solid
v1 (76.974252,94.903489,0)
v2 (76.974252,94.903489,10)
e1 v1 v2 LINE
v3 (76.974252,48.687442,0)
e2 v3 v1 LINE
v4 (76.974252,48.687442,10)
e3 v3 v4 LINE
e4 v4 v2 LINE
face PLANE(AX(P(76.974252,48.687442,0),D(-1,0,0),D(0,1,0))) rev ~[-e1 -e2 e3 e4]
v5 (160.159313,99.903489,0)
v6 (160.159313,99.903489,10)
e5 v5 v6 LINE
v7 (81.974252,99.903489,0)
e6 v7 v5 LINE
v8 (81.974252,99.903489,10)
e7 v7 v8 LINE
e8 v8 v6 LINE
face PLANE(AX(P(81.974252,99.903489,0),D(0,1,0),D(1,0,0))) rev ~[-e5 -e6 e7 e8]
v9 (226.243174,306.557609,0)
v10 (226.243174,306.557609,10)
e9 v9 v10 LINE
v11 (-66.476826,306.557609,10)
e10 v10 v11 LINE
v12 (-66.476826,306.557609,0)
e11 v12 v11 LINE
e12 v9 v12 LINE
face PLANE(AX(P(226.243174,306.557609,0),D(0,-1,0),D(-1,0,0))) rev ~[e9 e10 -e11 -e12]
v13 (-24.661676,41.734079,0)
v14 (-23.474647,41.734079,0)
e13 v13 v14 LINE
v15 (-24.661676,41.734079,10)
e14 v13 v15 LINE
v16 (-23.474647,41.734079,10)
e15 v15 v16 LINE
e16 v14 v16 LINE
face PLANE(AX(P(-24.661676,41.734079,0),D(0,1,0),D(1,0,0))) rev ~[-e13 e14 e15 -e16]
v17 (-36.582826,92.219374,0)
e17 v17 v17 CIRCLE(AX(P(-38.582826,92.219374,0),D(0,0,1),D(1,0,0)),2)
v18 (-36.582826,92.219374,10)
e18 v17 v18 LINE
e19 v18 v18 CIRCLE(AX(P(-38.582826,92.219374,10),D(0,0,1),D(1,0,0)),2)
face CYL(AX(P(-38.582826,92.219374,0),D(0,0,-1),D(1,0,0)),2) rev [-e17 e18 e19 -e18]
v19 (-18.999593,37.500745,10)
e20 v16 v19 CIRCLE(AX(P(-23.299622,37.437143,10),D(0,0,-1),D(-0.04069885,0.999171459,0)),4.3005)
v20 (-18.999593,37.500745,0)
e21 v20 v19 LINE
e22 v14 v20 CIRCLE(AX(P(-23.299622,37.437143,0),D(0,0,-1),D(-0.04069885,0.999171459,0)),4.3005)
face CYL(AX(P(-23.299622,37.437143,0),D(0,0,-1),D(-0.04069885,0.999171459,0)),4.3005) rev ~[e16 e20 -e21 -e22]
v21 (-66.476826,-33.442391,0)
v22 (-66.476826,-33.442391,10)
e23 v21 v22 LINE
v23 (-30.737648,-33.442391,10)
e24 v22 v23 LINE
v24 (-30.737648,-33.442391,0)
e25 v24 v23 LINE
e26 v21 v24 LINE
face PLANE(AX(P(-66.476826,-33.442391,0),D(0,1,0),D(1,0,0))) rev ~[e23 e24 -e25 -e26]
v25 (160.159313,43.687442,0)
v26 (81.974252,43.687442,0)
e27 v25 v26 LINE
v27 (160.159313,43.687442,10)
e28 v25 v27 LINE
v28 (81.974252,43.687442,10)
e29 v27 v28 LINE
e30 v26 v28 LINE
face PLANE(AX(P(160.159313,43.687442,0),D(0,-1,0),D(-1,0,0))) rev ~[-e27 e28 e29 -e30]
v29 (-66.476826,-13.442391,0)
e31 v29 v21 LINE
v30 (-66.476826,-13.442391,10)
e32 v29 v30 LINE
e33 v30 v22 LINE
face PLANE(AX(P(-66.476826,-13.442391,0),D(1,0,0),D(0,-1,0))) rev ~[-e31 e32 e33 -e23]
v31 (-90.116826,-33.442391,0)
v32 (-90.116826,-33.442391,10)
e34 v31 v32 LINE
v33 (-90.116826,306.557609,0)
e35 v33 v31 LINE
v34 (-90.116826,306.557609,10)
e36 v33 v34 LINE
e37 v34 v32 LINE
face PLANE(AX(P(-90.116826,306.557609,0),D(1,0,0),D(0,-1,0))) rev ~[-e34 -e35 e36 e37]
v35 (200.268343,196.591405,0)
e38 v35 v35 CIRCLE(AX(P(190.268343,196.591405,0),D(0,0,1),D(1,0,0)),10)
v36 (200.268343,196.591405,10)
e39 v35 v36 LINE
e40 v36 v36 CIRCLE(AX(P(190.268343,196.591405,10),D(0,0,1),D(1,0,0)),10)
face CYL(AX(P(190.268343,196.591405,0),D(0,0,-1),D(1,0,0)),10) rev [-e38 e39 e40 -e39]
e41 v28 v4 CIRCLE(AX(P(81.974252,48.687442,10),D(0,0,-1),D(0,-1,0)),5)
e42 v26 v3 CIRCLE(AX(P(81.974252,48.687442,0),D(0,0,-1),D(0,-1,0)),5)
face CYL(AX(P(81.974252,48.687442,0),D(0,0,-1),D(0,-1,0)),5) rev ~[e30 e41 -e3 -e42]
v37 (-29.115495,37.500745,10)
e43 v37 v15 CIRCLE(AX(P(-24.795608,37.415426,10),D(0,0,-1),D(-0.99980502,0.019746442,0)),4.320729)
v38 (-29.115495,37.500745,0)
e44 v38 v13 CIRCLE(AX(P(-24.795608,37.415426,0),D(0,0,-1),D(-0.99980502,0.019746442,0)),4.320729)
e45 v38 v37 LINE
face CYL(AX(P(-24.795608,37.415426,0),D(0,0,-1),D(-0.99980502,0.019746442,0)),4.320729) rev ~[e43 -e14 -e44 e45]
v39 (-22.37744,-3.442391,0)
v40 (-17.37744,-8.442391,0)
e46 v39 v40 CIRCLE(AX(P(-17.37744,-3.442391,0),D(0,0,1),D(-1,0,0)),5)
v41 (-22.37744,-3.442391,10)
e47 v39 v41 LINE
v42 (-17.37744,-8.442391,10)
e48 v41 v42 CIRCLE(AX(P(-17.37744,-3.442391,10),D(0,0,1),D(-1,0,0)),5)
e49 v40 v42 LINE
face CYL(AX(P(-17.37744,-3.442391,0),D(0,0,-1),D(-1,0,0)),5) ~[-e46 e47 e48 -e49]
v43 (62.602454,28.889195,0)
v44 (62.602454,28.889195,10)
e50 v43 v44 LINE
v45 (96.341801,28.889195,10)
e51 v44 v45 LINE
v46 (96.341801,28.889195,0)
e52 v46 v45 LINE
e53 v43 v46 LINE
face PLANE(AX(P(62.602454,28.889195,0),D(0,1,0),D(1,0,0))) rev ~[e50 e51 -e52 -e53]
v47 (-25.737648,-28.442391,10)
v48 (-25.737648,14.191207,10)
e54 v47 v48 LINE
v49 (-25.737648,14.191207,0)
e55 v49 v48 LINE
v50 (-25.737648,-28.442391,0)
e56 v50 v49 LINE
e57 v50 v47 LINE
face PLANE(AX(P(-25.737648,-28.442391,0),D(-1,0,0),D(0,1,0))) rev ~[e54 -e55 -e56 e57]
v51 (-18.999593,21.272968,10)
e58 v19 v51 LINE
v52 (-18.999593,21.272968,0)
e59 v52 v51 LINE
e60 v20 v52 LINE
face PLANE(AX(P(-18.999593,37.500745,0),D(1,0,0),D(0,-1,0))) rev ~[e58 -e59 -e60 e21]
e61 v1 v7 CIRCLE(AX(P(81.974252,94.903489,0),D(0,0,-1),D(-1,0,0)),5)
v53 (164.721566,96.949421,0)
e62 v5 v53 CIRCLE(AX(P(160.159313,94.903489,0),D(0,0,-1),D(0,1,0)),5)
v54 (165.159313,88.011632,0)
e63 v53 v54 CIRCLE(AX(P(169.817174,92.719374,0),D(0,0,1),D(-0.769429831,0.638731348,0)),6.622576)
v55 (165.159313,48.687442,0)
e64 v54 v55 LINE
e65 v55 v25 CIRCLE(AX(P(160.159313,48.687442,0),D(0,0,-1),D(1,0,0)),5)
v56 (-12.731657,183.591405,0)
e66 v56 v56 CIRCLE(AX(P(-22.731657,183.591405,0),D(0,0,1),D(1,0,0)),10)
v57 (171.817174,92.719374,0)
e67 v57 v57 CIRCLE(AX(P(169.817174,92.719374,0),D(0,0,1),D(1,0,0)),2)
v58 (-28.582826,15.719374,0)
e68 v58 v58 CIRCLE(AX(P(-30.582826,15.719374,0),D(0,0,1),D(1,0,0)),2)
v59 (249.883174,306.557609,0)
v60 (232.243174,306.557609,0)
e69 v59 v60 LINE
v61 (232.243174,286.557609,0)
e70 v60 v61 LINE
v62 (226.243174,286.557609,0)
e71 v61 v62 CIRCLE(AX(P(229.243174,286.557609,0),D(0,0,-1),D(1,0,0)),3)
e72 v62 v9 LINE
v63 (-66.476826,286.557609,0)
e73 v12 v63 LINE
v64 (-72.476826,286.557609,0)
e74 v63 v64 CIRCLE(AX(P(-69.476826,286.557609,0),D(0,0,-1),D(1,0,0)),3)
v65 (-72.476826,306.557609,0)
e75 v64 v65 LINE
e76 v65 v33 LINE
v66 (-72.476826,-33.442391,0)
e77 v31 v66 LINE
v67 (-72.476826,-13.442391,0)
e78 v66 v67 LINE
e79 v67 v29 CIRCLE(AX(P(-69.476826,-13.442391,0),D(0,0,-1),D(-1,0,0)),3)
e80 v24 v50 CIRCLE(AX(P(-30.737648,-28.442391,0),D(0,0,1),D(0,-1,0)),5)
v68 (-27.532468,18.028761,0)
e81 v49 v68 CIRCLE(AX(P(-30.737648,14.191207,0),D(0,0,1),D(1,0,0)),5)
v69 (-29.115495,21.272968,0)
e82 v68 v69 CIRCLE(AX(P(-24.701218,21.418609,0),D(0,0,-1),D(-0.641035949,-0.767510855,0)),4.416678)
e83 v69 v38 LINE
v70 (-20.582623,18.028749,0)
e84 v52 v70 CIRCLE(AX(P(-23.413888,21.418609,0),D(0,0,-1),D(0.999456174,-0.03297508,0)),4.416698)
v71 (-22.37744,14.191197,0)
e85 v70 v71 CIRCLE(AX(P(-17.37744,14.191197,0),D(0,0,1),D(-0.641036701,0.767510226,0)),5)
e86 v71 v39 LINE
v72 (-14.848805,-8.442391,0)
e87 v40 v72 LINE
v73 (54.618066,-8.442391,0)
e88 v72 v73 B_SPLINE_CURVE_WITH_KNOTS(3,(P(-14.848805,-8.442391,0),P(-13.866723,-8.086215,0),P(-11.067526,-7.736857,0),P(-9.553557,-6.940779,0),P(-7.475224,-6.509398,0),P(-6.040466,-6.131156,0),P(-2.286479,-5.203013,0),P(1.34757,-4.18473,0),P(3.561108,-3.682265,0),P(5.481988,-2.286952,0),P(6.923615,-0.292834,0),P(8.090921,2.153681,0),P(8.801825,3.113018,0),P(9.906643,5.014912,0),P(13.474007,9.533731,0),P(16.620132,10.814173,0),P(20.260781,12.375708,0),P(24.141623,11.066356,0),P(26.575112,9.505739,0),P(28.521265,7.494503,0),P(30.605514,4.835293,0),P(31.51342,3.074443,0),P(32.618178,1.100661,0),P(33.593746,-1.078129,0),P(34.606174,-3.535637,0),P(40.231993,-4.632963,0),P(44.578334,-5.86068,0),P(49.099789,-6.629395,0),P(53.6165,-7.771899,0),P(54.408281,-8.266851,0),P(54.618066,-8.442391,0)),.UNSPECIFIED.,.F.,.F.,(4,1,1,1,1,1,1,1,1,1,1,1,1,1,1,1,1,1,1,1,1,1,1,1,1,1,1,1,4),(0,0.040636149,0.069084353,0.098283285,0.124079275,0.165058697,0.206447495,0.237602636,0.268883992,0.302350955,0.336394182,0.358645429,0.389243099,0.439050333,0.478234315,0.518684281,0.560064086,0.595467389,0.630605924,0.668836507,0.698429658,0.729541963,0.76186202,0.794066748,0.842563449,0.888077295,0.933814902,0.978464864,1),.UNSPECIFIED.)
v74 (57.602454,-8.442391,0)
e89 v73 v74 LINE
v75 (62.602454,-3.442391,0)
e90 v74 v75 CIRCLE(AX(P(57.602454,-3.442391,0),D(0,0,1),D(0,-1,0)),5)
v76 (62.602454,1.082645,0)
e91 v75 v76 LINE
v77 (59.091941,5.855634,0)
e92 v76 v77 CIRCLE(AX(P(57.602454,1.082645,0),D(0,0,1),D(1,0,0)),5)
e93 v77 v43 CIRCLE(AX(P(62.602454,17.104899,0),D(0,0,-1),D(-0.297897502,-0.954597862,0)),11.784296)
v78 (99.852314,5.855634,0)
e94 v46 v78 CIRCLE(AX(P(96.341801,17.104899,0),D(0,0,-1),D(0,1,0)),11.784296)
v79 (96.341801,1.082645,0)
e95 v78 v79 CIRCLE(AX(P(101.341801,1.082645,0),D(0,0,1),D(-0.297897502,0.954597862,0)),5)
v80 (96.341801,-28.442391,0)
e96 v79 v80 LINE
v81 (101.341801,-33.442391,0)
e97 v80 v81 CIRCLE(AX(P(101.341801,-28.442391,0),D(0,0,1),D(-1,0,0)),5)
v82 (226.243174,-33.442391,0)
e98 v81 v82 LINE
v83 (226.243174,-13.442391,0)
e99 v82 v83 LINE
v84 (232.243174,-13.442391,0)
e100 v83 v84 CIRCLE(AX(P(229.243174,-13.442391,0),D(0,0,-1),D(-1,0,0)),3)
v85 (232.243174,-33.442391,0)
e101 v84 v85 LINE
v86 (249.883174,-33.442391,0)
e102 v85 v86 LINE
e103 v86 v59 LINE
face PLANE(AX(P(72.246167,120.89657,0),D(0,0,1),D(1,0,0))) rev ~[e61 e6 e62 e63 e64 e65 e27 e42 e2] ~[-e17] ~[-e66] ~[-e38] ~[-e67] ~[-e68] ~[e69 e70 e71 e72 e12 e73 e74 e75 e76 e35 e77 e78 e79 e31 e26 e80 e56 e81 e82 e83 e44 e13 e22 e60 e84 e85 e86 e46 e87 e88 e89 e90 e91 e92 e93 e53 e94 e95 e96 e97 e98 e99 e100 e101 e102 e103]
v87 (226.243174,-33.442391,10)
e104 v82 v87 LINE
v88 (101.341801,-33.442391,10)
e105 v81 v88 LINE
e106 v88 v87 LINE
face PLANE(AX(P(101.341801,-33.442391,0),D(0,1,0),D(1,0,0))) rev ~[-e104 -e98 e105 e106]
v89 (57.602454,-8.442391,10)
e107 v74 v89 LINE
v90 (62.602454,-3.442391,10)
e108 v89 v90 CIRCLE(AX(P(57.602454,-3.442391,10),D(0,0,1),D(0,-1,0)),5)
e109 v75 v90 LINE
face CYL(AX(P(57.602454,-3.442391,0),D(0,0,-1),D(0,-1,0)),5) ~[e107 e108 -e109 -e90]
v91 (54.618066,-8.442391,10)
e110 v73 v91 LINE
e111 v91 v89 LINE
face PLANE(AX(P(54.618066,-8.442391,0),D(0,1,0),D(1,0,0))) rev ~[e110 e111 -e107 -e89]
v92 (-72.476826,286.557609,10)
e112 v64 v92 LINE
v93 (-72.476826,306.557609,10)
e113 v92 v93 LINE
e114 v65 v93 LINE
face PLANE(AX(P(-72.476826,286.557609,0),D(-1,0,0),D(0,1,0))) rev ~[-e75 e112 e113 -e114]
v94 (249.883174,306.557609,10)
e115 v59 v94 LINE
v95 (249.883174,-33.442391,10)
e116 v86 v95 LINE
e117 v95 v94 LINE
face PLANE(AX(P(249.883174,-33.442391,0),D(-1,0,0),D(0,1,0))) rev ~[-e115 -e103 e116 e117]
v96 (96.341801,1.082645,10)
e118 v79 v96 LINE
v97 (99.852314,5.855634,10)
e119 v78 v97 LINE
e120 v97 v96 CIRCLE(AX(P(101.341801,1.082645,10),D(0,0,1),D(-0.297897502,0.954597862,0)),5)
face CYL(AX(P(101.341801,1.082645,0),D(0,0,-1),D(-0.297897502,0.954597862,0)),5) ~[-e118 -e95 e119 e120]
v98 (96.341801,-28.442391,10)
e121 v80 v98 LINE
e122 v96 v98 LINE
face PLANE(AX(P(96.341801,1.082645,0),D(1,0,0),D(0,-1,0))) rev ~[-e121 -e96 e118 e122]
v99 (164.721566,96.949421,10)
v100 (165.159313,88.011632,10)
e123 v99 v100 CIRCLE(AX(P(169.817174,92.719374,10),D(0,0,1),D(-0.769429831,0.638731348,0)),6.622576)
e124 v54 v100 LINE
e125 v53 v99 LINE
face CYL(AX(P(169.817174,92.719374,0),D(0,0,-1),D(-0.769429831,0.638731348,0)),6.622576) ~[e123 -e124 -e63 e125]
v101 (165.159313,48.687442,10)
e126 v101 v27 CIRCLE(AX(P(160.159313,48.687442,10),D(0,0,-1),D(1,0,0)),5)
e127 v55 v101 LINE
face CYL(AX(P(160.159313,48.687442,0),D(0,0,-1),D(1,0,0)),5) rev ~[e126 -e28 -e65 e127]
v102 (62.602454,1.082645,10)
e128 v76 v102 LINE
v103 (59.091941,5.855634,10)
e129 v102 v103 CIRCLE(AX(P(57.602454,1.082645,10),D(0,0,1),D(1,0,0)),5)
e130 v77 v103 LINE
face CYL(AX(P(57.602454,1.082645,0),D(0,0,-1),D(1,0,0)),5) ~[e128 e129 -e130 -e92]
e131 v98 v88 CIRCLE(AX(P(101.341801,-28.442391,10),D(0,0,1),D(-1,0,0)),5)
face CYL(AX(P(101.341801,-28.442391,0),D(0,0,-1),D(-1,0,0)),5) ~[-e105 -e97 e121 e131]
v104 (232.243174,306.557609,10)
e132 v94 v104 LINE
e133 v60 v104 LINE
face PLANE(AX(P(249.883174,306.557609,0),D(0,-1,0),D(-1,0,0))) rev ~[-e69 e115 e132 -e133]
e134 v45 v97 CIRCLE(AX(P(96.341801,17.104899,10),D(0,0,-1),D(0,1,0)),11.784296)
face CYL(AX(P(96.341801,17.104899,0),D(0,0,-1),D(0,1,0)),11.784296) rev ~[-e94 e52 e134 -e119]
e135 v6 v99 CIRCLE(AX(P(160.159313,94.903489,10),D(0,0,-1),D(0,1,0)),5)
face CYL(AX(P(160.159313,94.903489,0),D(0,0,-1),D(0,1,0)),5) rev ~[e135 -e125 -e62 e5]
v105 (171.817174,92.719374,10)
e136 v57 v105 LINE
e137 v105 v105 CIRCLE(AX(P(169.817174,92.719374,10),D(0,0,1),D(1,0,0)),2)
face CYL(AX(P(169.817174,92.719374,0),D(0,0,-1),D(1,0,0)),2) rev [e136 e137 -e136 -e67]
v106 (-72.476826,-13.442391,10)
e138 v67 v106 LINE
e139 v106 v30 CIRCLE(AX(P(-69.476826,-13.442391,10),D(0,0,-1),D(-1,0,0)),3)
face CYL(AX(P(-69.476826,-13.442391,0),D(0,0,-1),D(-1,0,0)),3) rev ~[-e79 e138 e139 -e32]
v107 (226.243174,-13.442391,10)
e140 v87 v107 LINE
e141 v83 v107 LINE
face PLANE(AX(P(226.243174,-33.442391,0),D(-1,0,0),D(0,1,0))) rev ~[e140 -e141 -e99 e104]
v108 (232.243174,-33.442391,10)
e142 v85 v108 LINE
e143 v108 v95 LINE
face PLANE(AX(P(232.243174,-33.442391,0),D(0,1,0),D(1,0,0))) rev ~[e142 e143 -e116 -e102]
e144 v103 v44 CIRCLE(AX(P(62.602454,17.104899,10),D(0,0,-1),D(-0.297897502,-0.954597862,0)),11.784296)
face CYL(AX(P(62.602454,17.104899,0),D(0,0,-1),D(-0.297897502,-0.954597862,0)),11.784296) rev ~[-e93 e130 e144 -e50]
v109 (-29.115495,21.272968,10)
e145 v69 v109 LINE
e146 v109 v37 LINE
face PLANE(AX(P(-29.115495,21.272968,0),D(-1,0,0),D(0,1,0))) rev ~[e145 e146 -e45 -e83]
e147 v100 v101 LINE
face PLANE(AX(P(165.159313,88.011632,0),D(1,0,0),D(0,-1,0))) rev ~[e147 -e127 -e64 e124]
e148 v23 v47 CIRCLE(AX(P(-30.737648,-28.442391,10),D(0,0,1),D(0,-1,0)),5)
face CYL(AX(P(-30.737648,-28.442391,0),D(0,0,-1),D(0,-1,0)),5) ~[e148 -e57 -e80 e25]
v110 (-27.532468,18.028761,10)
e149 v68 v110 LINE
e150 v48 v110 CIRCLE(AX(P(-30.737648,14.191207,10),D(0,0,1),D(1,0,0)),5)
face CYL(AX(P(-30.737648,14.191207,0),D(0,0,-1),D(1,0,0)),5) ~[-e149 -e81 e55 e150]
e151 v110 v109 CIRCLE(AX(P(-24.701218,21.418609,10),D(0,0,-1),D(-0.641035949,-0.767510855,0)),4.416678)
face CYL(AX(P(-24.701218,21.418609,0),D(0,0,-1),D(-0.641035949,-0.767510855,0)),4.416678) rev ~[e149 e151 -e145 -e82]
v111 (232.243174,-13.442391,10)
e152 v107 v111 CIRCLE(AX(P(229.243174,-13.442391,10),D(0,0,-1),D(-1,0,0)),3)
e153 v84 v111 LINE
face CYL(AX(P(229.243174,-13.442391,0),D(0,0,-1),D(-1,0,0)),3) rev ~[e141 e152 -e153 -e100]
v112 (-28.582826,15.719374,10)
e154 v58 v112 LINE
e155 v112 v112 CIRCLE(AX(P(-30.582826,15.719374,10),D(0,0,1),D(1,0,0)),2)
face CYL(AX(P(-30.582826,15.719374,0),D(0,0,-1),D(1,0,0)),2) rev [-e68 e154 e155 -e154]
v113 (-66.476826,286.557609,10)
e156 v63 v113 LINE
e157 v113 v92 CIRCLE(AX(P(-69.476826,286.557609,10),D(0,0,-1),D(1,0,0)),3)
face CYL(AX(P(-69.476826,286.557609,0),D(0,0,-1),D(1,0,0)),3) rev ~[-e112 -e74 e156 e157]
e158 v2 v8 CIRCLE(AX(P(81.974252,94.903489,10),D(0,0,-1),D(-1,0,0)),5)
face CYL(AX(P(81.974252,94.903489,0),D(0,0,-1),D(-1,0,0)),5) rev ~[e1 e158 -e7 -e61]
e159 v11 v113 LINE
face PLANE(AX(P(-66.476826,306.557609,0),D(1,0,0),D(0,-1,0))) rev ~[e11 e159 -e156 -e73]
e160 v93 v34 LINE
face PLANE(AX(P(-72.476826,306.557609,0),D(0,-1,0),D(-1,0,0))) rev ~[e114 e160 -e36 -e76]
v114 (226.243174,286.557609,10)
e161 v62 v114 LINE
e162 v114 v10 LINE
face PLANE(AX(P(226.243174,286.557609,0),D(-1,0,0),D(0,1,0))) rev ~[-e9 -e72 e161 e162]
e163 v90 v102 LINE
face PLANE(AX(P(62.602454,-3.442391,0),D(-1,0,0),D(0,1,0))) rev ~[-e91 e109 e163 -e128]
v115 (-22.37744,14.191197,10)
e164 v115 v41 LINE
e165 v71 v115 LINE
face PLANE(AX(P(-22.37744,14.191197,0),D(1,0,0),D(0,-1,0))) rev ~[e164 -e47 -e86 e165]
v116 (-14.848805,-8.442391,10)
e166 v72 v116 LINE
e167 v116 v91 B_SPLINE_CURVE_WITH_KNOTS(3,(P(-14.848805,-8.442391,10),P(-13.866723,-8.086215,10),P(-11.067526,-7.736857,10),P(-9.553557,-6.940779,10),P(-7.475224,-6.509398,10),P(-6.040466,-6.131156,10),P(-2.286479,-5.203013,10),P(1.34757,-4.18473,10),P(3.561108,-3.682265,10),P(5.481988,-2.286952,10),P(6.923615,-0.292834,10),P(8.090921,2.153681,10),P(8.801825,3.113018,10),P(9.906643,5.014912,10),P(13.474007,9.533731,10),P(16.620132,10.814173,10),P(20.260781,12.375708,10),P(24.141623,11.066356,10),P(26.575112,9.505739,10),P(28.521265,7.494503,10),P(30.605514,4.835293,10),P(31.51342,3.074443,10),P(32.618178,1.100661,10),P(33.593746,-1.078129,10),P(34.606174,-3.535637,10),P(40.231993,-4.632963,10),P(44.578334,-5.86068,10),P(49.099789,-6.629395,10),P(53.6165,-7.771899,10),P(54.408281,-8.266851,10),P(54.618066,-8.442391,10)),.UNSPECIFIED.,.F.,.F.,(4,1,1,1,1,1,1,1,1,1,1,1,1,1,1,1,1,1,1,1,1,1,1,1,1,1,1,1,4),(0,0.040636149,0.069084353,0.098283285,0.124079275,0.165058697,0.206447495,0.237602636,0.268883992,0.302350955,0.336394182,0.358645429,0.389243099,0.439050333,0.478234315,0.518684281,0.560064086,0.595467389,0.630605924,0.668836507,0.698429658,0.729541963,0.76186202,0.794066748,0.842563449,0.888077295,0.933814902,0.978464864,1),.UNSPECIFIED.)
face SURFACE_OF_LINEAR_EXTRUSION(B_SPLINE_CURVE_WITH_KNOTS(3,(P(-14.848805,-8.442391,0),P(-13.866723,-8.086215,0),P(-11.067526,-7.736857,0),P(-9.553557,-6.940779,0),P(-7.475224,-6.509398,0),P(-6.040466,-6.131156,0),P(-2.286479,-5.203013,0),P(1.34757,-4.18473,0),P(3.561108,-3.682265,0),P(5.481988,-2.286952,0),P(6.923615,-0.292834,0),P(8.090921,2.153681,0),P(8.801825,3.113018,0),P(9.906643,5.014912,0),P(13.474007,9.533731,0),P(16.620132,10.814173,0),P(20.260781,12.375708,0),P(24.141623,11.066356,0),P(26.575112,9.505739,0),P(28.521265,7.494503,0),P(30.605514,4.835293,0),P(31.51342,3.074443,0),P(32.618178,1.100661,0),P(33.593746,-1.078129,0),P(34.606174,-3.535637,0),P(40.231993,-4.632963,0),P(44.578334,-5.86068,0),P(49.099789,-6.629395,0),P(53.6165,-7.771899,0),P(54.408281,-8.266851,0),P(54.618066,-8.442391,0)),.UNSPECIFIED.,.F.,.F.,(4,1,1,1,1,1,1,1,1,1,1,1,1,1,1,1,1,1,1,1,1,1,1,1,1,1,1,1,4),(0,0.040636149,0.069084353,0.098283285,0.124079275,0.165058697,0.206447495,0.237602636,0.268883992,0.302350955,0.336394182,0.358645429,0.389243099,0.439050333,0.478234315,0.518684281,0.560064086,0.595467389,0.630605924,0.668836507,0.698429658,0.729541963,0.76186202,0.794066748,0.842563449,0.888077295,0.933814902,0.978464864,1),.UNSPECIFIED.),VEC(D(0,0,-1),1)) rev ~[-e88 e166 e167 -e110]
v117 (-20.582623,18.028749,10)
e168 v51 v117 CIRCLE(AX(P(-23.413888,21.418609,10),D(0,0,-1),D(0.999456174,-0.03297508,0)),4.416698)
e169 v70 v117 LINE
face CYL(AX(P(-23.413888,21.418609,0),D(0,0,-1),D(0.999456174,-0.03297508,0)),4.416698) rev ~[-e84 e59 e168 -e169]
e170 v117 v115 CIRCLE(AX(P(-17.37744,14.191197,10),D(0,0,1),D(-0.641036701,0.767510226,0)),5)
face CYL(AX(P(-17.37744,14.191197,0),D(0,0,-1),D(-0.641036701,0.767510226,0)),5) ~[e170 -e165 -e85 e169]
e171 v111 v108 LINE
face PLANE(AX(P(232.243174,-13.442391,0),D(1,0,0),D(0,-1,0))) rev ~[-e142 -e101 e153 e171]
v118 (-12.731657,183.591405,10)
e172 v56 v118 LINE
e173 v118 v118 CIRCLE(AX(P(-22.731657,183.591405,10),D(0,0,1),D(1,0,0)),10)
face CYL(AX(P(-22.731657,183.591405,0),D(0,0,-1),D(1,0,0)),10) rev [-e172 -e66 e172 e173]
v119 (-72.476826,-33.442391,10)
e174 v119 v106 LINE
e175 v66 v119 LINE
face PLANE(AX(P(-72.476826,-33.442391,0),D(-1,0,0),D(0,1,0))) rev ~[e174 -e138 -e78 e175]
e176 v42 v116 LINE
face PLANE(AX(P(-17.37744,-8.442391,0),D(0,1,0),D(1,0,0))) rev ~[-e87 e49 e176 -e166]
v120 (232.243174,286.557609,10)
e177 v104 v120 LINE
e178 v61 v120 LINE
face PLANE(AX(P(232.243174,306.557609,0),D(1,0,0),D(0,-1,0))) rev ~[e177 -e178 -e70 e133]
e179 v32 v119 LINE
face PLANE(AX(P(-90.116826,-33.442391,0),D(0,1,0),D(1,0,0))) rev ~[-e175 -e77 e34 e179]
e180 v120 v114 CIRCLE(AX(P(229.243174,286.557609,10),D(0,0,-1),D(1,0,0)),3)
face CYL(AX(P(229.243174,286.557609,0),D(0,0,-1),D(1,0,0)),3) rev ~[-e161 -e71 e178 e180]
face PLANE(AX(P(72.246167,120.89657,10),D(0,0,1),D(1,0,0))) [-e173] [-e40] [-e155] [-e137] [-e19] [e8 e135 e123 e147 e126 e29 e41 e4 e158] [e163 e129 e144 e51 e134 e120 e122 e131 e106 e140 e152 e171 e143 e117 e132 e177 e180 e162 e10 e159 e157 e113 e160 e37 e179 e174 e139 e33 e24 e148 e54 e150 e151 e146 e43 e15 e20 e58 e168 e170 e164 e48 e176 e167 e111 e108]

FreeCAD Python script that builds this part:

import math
import FreeCAD as App
import Part
import Sketcher
from FreeCAD import Vector
Q = App.Units.Quantity

doc = App.newDocument("Part")
body = doc.addObject("PartDesign::Body", "Body")

# Sketch on XY plane
sketch1 = body.newObject("Sketcher::SketchObject", "Sketch")
sketch1.AttachmentSupport = (doc.getObject("XY_Plane"), [""])
sketch1.MapMode = "FlatFace"
sketch1.addGeometry(Part.ArcOfCircle(Part.Circle(Vector(62.602454, 17.104899, 0), Vector(0, 0, 1), 11.784296), math.radians(90), math.radians(252.668634)), False)
sketch1.addGeometry(Part.LineSegment(Vector(62.602454, 28.889195, 0), Vector(96.341801, 28.889195, 0)), False)
sketch1.addGeometry(Part.ArcOfCircle(Part.Circle(Vector(96.341801, 17.104899, 0), Vector(0, 0, 1), 11.784296), math.radians(-72.668634), math.radians(90)), False)
sketch1.addGeometry(Part.ArcOfCircle(Part.Circle(Vector(101.341801, 1.082645, 0), Vector(0, 0, 1), 5), math.radians(107.331366), math.radians(180)), False)
sketch1.addGeometry(Part.LineSegment(Vector(96.341801, 1.082645, 0), Vector(96.341801, -28.442391, 0)), False)
sketch1.addGeometry(Part.ArcOfCircle(Part.Circle(Vector(101.341801, -28.442391, 0), Vector(0, 0, 1), 5), math.radians(180), math.radians(270)), False)
sketch1.addGeometry(Part.LineSegment(Vector(101.341801, -33.442391, 0), Vector(226.243174, -33.442391, 0)), False)
sketch1.addGeometry(Part.LineSegment(Vector(226.243174, -33.442391, 0), Vector(226.243174, -13.442391, 0)), False)
sketch1.addGeometry(Part.ArcOfCircle(Part.Circle(Vector(229.243174, -13.442391, 0), Vector(0, 0, 1), 3), math.radians(0), math.radians(180)), False)
sketch1.addGeometry(Part.LineSegment(Vector(232.243174, -13.442391, 0), Vector(232.243174, -33.442391, 0)), False)
sketch1.addGeometry(Part.LineSegment(Vector(232.243174, -33.442391, 0), Vector(249.883174, -33.442391, 0)), False)
sketch1.addGeometry(Part.LineSegment(Vector(249.883174, -33.442391, 0), Vector(249.883174, 306.557609, 0)), False)
sketch1.addGeometry(Part.LineSegment(Vector(249.883174, 306.557609, 0), Vector(232.243174, 306.557609, 0)), False)
sketch1.addGeometry(Part.LineSegment(Vector(232.243174, 306.557609, 0), Vector(232.243174, 286.557609, 0)), False)
sketch1.addGeometry(Part.ArcOfCircle(Part.Circle(Vector(229.243174, 286.557609, 0), Vector(0, 0, 1), 3), math.radians(180), math.radians(360)), False)
sketch1.addGeometry(Part.LineSegment(Vector(226.243174, 286.557609, 0), Vector(226.243174, 306.557609, 0)), False)
sketch1.addGeometry(Part.LineSegment(Vector(226.243174, 306.557609, 0), Vector(-66.476826, 306.557609, 0)), False)
sketch1.addGeometry(Part.LineSegment(Vector(-66.476826, 306.557609, 0), Vector(-66.476826, 286.557609, 0)), False)
sketch1.addGeometry(Part.ArcOfCircle(Part.Circle(Vector(-69.476826, 286.557609, 0), Vector(0, 0, 1), 3), math.radians(180), math.radians(360)), False)
sketch1.addGeometry(Part.LineSegment(Vector(-72.476826, 286.557609, 0), Vector(-72.476826, 306.557609, 0)), False)
sketch1.addGeometry(Part.LineSegment(Vector(-72.476826, 306.557609, 0), Vector(-90.116826, 306.557609, 0)), False)
sketch1.addGeometry(Part.LineSegment(Vector(-90.116826, 306.557609, 0), Vector(-90.116826, -33.442391, 0)), False)
sketch1.addGeometry(Part.LineSegment(Vector(-90.116826, -33.442391, 0), Vector(-72.476826, -33.442391, 0)), False)
sketch1.addGeometry(Part.LineSegment(Vector(-72.476826, -33.442391, 0), Vector(-72.476826, -13.442391, 0)), False)
sketch1.addGeometry(Part.ArcOfCircle(Part.Circle(Vector(-69.476826, -13.442391, 0), Vector(0, 0, 1), 3), math.radians(0), math.radians(180)), False)
sketch1.addGeometry(Part.LineSegment(Vector(-66.476826, -13.442391, 0), Vector(-66.476826, -33.442391, 0)), False)
sketch1.addGeometry(Part.LineSegment(Vector(-66.476826, -33.442391, 0), Vector(-30.737648, -33.442391, 0)), False)
sketch1.addGeometry(Part.ArcOfCircle(Part.Circle(Vector(-30.737648, -28.442391, 0), Vector(0, 0, 1), 5), math.radians(-90), math.radians(0)), False)
sketch1.addGeometry(Part.LineSegment(Vector(-25.737648, -28.442391, 0), Vector(-25.737648, 14.191207, 0)), False)
sketch1.addGeometry(Part.ArcOfCircle(Part.Circle(Vector(-30.737648, 14.191207, 0), Vector(0, 0, 1), 5), math.radians(0), math.radians(50.130889)), False)
sketch1.addGeometry(Part.ArcOfCircle(Part.Circle(Vector(-24.701218, 21.418609, 0), Vector(0, 0, 1), 4.416678), math.radians(-178.110316), math.radians(-129.869111)), False)
sketch1.addGeometry(Part.LineSegment(Vector(-29.115495, 21.272968, 0), Vector(-29.115495, 37.500745, 0)), False)
sketch1.addGeometry(Part.ArcOfCircle(Part.Circle(Vector(-24.795608, 37.415426, 0), Vector(0, 0, 1), 4.320729), math.radians(88.223685), math.radians(178.868539)), False)
sketch1.addGeometry(Part.LineSegment(Vector(-24.661676, 41.734079, 0), Vector(-23.474647, 41.734079, 0)), False)
sketch1.addGeometry(Part.ArcOfCircle(Part.Circle(Vector(-23.299622, 37.437143, 0), Vector(0, 0, 1), 4.3005), math.radians(0.847413), math.radians(92.332517)), False)
sketch1.addGeometry(Part.LineSegment(Vector(-18.999593, 37.500745, 0), Vector(-18.999593, 21.272968, 0)), False)
sketch1.addGeometry(Part.ArcOfCircle(Part.Circle(Vector(-23.413888, 21.418609, 0), Vector(0, 0, 1), 4.416698), math.radians(-50.130833), math.radians(-1.889675)), False)
sketch1.addGeometry(Part.ArcOfCircle(Part.Circle(Vector(-17.37744, 14.191197, 0), Vector(0, 0, 1), 5), math.radians(129.869167), math.radians(180)), False)
sketch1.addGeometry(Part.LineSegment(Vector(-22.37744, 14.191197, 0), Vector(-22.37744, -3.442391, 0)), False)
sketch1.addGeometry(Part.ArcOfCircle(Part.Circle(Vector(-17.37744, -3.442391, 0), Vector(0, 0, 1), 5), math.radians(180), math.radians(270)), False)
sketch1.addGeometry(Part.LineSegment(Vector(-17.37744, -8.442391, 0), Vector(-14.848805, -8.442391, 0)), False)
sketch1.addGeometry(Part.BSplineCurve([Vector(-14.848805, -8.442391, 0), Vector(-13.866723, -8.086215, 0), Vector(-11.067526, -7.736857, 0), Vector(-9.553557, -6.940779, 0), Vector(-7.475224, -6.509398, 0), Vector(-6.040466, -6.131156, 0), Vector(-2.286479, -5.203013, 0), Vector(1.34757, -4.18473, 0), Vector(3.561108, -3.682265, 0), Vector(5.481988, -2.286952, 0), Vector(6.923615, -0.292834, 0), Vector(8.090921, 2.153681, 0), Vector(8.801825, 3.113018, 0), Vector(9.906643, 5.014912, 0), Vector(13.474007, 9.533731, 0), Vector(16.620132, 10.814173, 0), Vector(20.260781, 12.375708, 0), Vector(24.141623, 11.066356, 0), Vector(26.575112, 9.505739, 0), Vector(28.521265, 7.494503, 0), Vector(30.605514, 4.835293, 0), Vector(31.51342, 3.074443, 0), Vector(32.618178, 1.100661, 0), Vector(33.593746, -1.078129, 0), Vector(34.606174, -3.535637, 0), Vector(40.231993, -4.632963, 0), Vector(44.578334, -5.86068, 0), Vector(49.099789, -6.629395, 0), Vector(53.6165, -7.771899, 0), Vector(54.408281, -8.266851, 0), Vector(54.618066, -8.442391, 0)], [4, 1, 1, 1, 1, 1, 1, 1, 1, 1, 1, 1, 1, 1, 1, 1, 1, 1, 1, 1, 1, 1, 1, 1, 1, 1, 1, 1, 4], [0, 0.040636149, 0.069084353, 0.098283285, 0.124079275, 0.165058697, 0.206447495, 0.237602636, 0.268883992, 0.302350955, 0.336394182, 0.358645429, 0.389243099, 0.439050333, 0.478234315, 0.518684281, 0.560064086, 0.595467389, 0.630605924, 0.668836507, 0.698429658, 0.729541963, 0.76186202, 0.794066748, 0.842563449, 0.888077295, 0.933814902, 0.978464864, 1], False, 3, [1, 1, 1, 1, 1, 1, 1, 1, 1, 1, 1, 1, 1, 1, 1, 1, 1, 1, 1, 1, 1, 1, 1, 1, 1, 1, 1, 1, 1, 1, 1], False), False)
sketch1.addGeometry(Part.LineSegment(Vector(54.618066, -8.442391, 0), Vector(57.602454, -8.442391, 0)), False)
sketch1.addGeometry(Part.ArcOfCircle(Part.Circle(Vector(57.602454, -3.442391, 0), Vector(0, 0, 1), 5), math.radians(-90), math.radians(0)), False)
sketch1.addGeometry(Part.LineSegment(Vector(62.602454, -3.442391, 0), Vector(62.602454, 1.082645, 0)), False)
sketch1.addGeometry(Part.ArcOfCircle(Part.Circle(Vector(57.602454, 1.082645, 0), Vector(0, 0, 1), 5), math.radians(0), math.radians(72.668634)), False)
sketch1.addGeometry(Part.Circle(Vector(-30.582826, 15.719374, 0), Vector(0, 0, 1), 2), False)
sketch1.addGeometry(Part.Circle(Vector(-38.582826, 92.219374, 0), Vector(0, 0, 1), 2), False)
sketch1.addGeometry(Part.LineSegment(Vector(76.974252, 48.687442, 0), Vector(76.974252, 94.903489, 0)), False)
sketch1.addGeometry(Part.ArcOfCircle(Part.Circle(Vector(81.974252, 94.903489, 0), Vector(0, 0, 1), 5), math.radians(90), math.radians(180)), False)
sketch1.addGeometry(Part.LineSegment(Vector(81.974252, 99.903489, 0), Vector(160.159313, 99.903489, 0)), False)
sketch1.addGeometry(Part.ArcOfCircle(Part.Circle(Vector(160.159313, 94.903489, 0), Vector(0, 0, 1), 5), math.radians(24.153739), math.radians(90)), False)
sketch1.addGeometry(Part.ArcOfCircle(Part.Circle(Vector(169.817174, 92.719374, 0), Vector(0, 0, 1), 6.622576), math.radians(140.302716), math.radians(225.305153)), False)
sketch1.addGeometry(Part.LineSegment(Vector(165.159313, 88.011632, 0), Vector(165.159313, 48.687442, 0)), False)
sketch1.addGeometry(Part.ArcOfCircle(Part.Circle(Vector(160.159313, 48.687442, 0), Vector(0, 0, 1), 5), math.radians(-90), math.radians(0)), False)
sketch1.addGeometry(Part.LineSegment(Vector(160.159313, 43.687442, 0), Vector(81.974252, 43.687442, 0)), False)
sketch1.addGeometry(Part.ArcOfCircle(Part.Circle(Vector(81.974252, 48.687442, 0), Vector(0, 0, 1), 5), math.radians(-180), math.radians(-90)), False)
sketch1.addGeometry(Part.Circle(Vector(169.817174, 92.719374, 0), Vector(0, 0, 1), 2), False)
sketch1.addGeometry(Part.Circle(Vector(-22.731657, 183.591405, 0), Vector(0, 0, 1), 10), False)
sketch1.addGeometry(Part.Circle(Vector(190.268343, 196.591405, 0), Vector(0, 0, 1), 10), False)
sketch1.addConstraint(Sketcher.Constraint("Block", 41))
sketch1.addConstraint(Sketcher.Constraint("Tangent", 0, 1, 1, 1))
sketch1.addConstraint(Sketcher.Constraint("Tangent", 1, 2, 2, 2))
sketch1.addConstraint(Sketcher.Constraint("Tangent", 2, 1, 3, 1))
sketch1.addConstraint(Sketcher.Constraint("Tangent", 3, 2, 4, 1))
sketch1.addConstraint(Sketcher.Constraint("Tangent", 4, 2, 5, 1))
sketch1.addConstraint(Sketcher.Constraint("Tangent", 5, 2, 6, 1))
sketch1.addConstraint(Sketcher.Constraint("Coincident", 6, 2, 7, 1))
sketch1.addConstraint(Sketcher.Constraint("Tangent", 7, 2, 8, 2))
sketch1.addConstraint(Sketcher.Constraint("Tangent", 8, 1, 9, 1))
sketch1.addConstraint(Sketcher.Constraint("Coincident", 9, 2, 10, 1))
sketch1.addConstraint(Sketcher.Constraint("Coincident", 10, 2, 11, 1))
sketch1.addConstraint(Sketcher.Constraint("Coincident", 11, 2, 12, 1))
sketch1.addConstraint(Sketcher.Constraint("Coincident", 12, 2, 13, 1))
sketch1.addConstraint(Sketcher.Constraint("Tangent", 13, 2, 14, 2))
sketch1.addConstraint(Sketcher.Constraint("Tangent", 14, 1, 15, 1))
sketch1.addConstraint(Sketcher.Constraint("Coincident", 15, 2, 16, 1))
sketch1.addConstraint(Sketcher.Constraint("Coincident", 16, 2, 17, 1))
sketch1.addConstraint(Sketcher.Constraint("Tangent", 17, 2, 18, 2))
sketch1.addConstraint(Sketcher.Constraint("Tangent", 18, 1, 19, 1))
sketch1.addConstraint(Sketcher.Constraint("Coincident", 19, 2, 20, 1))
sketch1.addConstraint(Sketcher.Constraint("Coincident", 20, 2, 21, 1))
sketch1.addConstraint(Sketcher.Constraint("Coincident", 21, 2, 22, 1))
sketch1.addConstraint(Sketcher.Constraint("Coincident", 22, 2, 23, 1))
sketch1.addConstraint(Sketcher.Constraint("Tangent", 23, 2, 24, 2))
sketch1.addConstraint(Sketcher.Constraint("Tangent", 24, 1, 25, 1))
sketch1.addConstraint(Sketcher.Constraint("Coincident", 25, 2, 26, 1))
sketch1.addConstraint(Sketcher.Constraint("Tangent", 26, 2, 27, 1))
sketch1.addConstraint(Sketcher.Constraint("Tangent", 27, 2, 28, 1))
sketch1.addConstraint(Sketcher.Constraint("Tangent", 28, 2, 29, 1))
sketch1.addConstraint(Sketcher.Constraint("Tangent", 29, 2, 30, 2))
sketch1.addConstraint(Sketcher.Constraint("Coincident", 30, 1, 31, 1))
sketch1.addConstraint(Sketcher.Constraint("Coincident", 31, 2, 32, 2))
sketch1.addConstraint(Sketcher.Constraint("Coincident", 32, 1, 33, 1))
sketch1.addConstraint(Sketcher.Constraint("Coincident", 33, 2, 34, 2))
sketch1.addConstraint(Sketcher.Constraint("Coincident", 34, 1, 35, 1))
sketch1.addConstraint(Sketcher.Constraint("Coincident", 35, 2, 36, 2))
sketch1.addConstraint(Sketcher.Constraint("Tangent", 36, 1, 37, 1))
sketch1.addConstraint(Sketcher.Constraint("Tangent", 37, 2, 38, 1))
sketch1.addConstraint(Sketcher.Constraint("Tangent", 38, 2, 39, 1))
sketch1.addConstraint(Sketcher.Constraint("Tangent", 39, 2, 40, 1))
sketch1.addConstraint(Sketcher.Constraint("Coincident", 40, 2, 41, 1))
sketch1.addConstraint(Sketcher.Constraint("Coincident", 41, 2, 42, 1))
sketch1.addConstraint(Sketcher.Constraint("Tangent", 42, 2, 43, 1))
sketch1.addConstraint(Sketcher.Constraint("Tangent", 43, 2, 44, 1))
sketch1.addConstraint(Sketcher.Constraint("Tangent", 44, 2, 45, 1))
sketch1.addConstraint(Sketcher.Constraint("Tangent", 45, 2, 0, 2))
sketch1.addConstraint(Sketcher.Constraint("Tangent", 48, 2, 49, 2))
sketch1.addConstraint(Sketcher.Constraint("Tangent", 49, 1, 50, 1))
sketch1.addConstraint(Sketcher.Constraint("Tangent", 50, 2, 51, 2))
sketch1.addConstraint(Sketcher.Constraint("Coincident", 51, 1, 52, 1))
sketch1.addConstraint(Sketcher.Constraint("Coincident", 52, 2, 53, 1))
sketch1.addConstraint(Sketcher.Constraint("Tangent", 53, 2, 54, 2))
sketch1.addConstraint(Sketcher.Constraint("Tangent", 54, 1, 55, 1))
sketch1.addConstraint(Sketcher.Constraint("Tangent", 55, 2, 56, 2))
sketch1.addConstraint(Sketcher.Constraint("Tangent", 56, 1, 48, 1))
sketch1.addConstraint(Sketcher.Constraint("Horizontal", 1))
sketch1.addConstraint(Sketcher.Constraint("Vertical", 4))
sketch1.addConstraint(Sketcher.Constraint("Horizontal", 6))
sketch1.addConstraint(Sketcher.Constraint("Vertical", 7))
sketch1.addConstraint(Sketcher.Constraint("Vertical", 9))
sketch1.addConstraint(Sketcher.Constraint("Horizontal", 10))
sketch1.addConstraint(Sketcher.Constraint("Vertical", 11))
sketch1.addConstraint(Sketcher.Constraint("Horizontal", 12))
sketch1.addConstraint(Sketcher.Constraint("Vertical", 13))
sketch1.addConstraint(Sketcher.Constraint("Vertical", 15))
sketch1.addConstraint(Sketcher.Constraint("Horizontal", 16))
sketch1.addConstraint(Sketcher.Constraint("Vertical", 17))
sketch1.addConstraint(Sketcher.Constraint("Vertical", 19))
sketch1.addConstraint(Sketcher.Constraint("Horizontal", 20))
sketch1.addConstraint(Sketcher.Constraint("Vertical", 21))
sketch1.addConstraint(Sketcher.Constraint("Horizontal", 22))
sketch1.addConstraint(Sketcher.Constraint("Vertical", 23))
sketch1.addConstraint(Sketcher.Constraint("Vertical", 25))
sketch1.addConstraint(Sketcher.Constraint("Horizontal", 26))
sketch1.addConstraint(Sketcher.Constraint("Vertical", 28))
sketch1.addConstraint(Sketcher.Constraint("Vertical", 31))
sketch1.addConstraint(Sketcher.Constraint("Horizontal", 33))
sketch1.addConstraint(Sketcher.Constraint("Vertical", 35))
sketch1.addConstraint(Sketcher.Constraint("Vertical", 38))
sketch1.addConstraint(Sketcher.Constraint("Horizontal", 40))
sketch1.addConstraint(Sketcher.Constraint("Horizontal", 42))
sketch1.addConstraint(Sketcher.Constraint("Vertical", 44))
sketch1.addConstraint(Sketcher.Constraint("Vertical", 48))
sketch1.addConstraint(Sketcher.Constraint("Horizontal", 50))
sketch1.addConstraint(Sketcher.Constraint("Vertical", 53))
sketch1.addConstraint(Sketcher.Constraint("Horizontal", 55))
sketch1.addConstraint(Sketcher.Constraint("Coincident", 57, 3, 52, 3))
sketch1.addConstraint(Sketcher.Constraint("Equal", 0, 2))
sketch1.addConstraint(Sketcher.Constraint("Equal", 3, 5))
sketch1.addConstraint(Sketcher.Constraint("Equal", 8, 14))
sketch1.addConstraint(Sketcher.Constraint("Equal", 14, 18))
sketch1.addConstraint(Sketcher.Constraint("Equal", 18, 24))
sketch1.addConstraint(Sketcher.Constraint("Equal", 5, 27))
sketch1.addConstraint(Sketcher.Constraint("Equal", 27, 29))
sketch1.addConstraint(Sketcher.Constraint("Equal", 29, 37))
sketch1.addConstraint(Sketcher.Constraint("Equal", 37, 39))
sketch1.addConstraint(Sketcher.Constraint("Equal", 39, 43))
sketch1.addConstraint(Sketcher.Constraint("Equal", 43, 45))
sketch1.addConstraint(Sketcher.Constraint("Equal", 46, 47))
sketch1.addConstraint(Sketcher.Constraint("Equal", 45, 49))
sketch1.addConstraint(Sketcher.Constraint("Equal", 49, 51))
sketch1.addConstraint(Sketcher.Constraint("Equal", 51, 54))
sketch1.addConstraint(Sketcher.Constraint("Equal", 54, 56))
sketch1.addConstraint(Sketcher.Constraint("Equal", 47, 57))
sketch1.addConstraint(Sketcher.Constraint("Equal", 58, 59))
sketch1.addConstraint(Sketcher.Constraint("Horizontal", 14, 3, 18, 3))
sketch1.addConstraint(Sketcher.Constraint("Horizontal", 8, 3, 24, 3))
sketch1.addConstraint(Sketcher.Constraint("Horizontal", 5, 3, 27, 3))
sketch1.addConstraint(Sketcher.Constraint("Horizontal", 30, 3, 36, 3))
sketch1.addConstraint(Sketcher.Constraint("Horizontal", 3, 3, 45, 3))
sketch1.addConstraint(Sketcher.Constraint("Horizontal", 6, 2, 9, 2))
sketch1.addConstraint(Sketcher.Constraint("Horizontal", 12, 2, 15, 2))
sketch1.addConstraint(Sketcher.Constraint("Horizontal", 16, 2, 19, 2))
sketch1.addConstraint(Sketcher.Constraint("Horizontal", 10, 2, 21, 2))
sketch1.addConstraint(Sketcher.Constraint("Horizontal", 31, 2, 34, 1))
sketch1.addConstraint(Sketcher.Constraint("Horizontal", 30, 1, 35, 2))
sketch1.addConstraint(Sketcher.Constraint("Vertical", 8, 3, 14, 3))
sketch1.addConstraint(Sketcher.Constraint("Vertical", 18, 3, 24, 3))
sketch1.addConstraint(Sketcher.Constraint("Vertical", 51, 3, 54, 3))
sketch1.addConstraint(Sketcher.Constraint("Vertical", 1, 2, 3, 2))
sketch1.addConstraint(Sketcher.Constraint("Equal", 12, 20))
sketch1.addConstraint(Sketcher.Constraint("Equal", 9, 13))
sketch1.addConstraint(Sketcher.Constraint("Diameter", 46, Q("4 mm")))
sketch1.addConstraint(Sketcher.Constraint("Diameter", 58, Q("20 mm")))
sketch1.addConstraint(Sketcher.Constraint("Radius", 3, Q("5 mm")))
sketch1.addConstraint(Sketcher.Constraint("Radius", 8, Q("3 mm")))
sketch1.addConstraint(Sketcher.Constraint("DistanceY", 7, 1, 7, 2, Q("20 mm")))
sketch1.addConstraint(Sketcher.Constraint("DistanceY", 11, 1, 11, 2, Q("340 mm")))
sketch1.addConstraint(Sketcher.Constraint("DistanceX", 10, 1, 10, 2, Q("17.64 mm")))
sketch1.addConstraint(Sketcher.Constraint("DistanceX", 16, 2, 16, 1, Q("292.72 mm")))
sketch1.addConstraint(Sketcher.Constraint("Radius", 34, Q("4.3005 mm")))
sketch1.addConstraint(Sketcher.Constraint("Radius", 30, Q("4.416678 mm")))
sketch1.addConstraint(Sketcher.Constraint("Radius", 32, Q("4.320729 mm")))
sketch1.addConstraint(Sketcher.Constraint("Radius", 0, Q("11.784296 mm")))
sketch1.addConstraint(Sketcher.Constraint("Radius", 36, Q("4.416698 mm")))
sketch1.addConstraint(Sketcher.Constraint("Radius", 52, Q("6.622576 mm")))
sketch1.addConstraint(Sketcher.Constraint("DistanceX", 26, 1, 26, 2, Q("35.739179 mm")))
sketch1.addConstraint(Sketcher.Constraint("DistanceX", 33, 1, 33, 2, Q("1.187028 mm")))
sketch1.addConstraint(Sketcher.Constraint("DistanceX", 42, 1, 42, 2, Q("2.984388 mm")))
sketch1.addConstraint(Sketcher.Constraint("DistanceX", 50, 1, 50, 2, Q("78.185061 mm")))
sketch1.addConstraint(Sketcher.Constraint("DistanceY", 38, 2, 38, 1, Q("17.633588 mm")))
sketch1.addConstraint(Sketcher.Constraint("DistanceY", 53, 2, 53, 1, Q("39.324189 mm")))
sketch1.addConstraint(Sketcher.Constraint("DistanceY", -1, 1, 0, 3, Q("17.104899 mm")))
sketch1.addConstraint(Sketcher.Constraint("DistanceX", -1, 1, 2, 3, Q("96.341801 mm")))
sketch1.addConstraint(Sketcher.Constraint("DistanceX", 6, 1, 6, 2, Q("124.901373 mm")))
sketch1.addConstraint(Sketcher.Constraint("DistanceX", 40, 1, 40, 2, Q("2.528635 mm")))
sketch1.addConstraint(Sketcher.Constraint("DistanceY", 4, 2, 4, 1, Q("29.525036 mm")))
sketch1.addConstraint(Sketcher.Constraint("DistanceY", 28, 1, 28, 2, Q("42.633597 mm")))
sketch1.addConstraint(Sketcher.Constraint("DistanceY", 31, 1, 31, 2, Q("16.227777 mm")))
sketch1.addConstraint(Sketcher.Constraint("DistanceY", 48, 1, 48, 2, Q("46.216046 mm")))
sketch1.addConstraint(Sketcher.Constraint("DistanceX", 30, 3, -1, 1, Q("24.701218 mm")))
sketch1.addConstraint(Sketcher.Constraint("DistanceX", -1, 1, 49, 3, Q("81.974252 mm")))
sketch1.addConstraint(Sketcher.Constraint("DistanceY", -1, 1, 49, 3, Q("94.903489 mm")))
sketch1.addConstraint(Sketcher.Constraint("DistanceY", -1, 1, 30, 1, Q("21.272968 mm")))
sketch1.addConstraint(Sketcher.Constraint("DistanceY", -1, 1, 32, 1, Q("41.734079 mm")))
sketch1.addConstraint(Sketcher.Constraint("DistanceY", -1, 1, 51, 1, Q("96.949421 mm")))
sketch1.addConstraint(Sketcher.Constraint("DistanceY", -1, 1, 32, 3, Q("37.415426 mm")))
sketch1.addConstraint(Sketcher.Constraint("DistanceX", 46, 3, -1, 1, Q("30.582826 mm")))
sketch1.addConstraint(Sketcher.Constraint("DistanceY", -1, 1, 46, 3, Q("15.719374 mm")))
sketch1.addConstraint(Sketcher.Constraint("DistanceX", 47, 3, -1, 1, Q("38.582826 mm")))
sketch1.addConstraint(Sketcher.Constraint("DistanceY", -1, 1, 47, 3, Q("92.219374 mm")))
sketch1.addConstraint(Sketcher.Constraint("DistanceX", 58, 3, -1, 1, Q("22.731657 mm")))
sketch1.addConstraint(Sketcher.Constraint("DistanceY", -1, 1, 58, 3, Q("183.591405 mm")))
sketch1.addConstraint(Sketcher.Constraint("DistanceX", -1, 1, 59, 3, Q("190.268343 mm")))
sketch1.addConstraint(Sketcher.Constraint("DistanceY", -1, 1, 59, 3, Q("196.591405 mm")))
pad1 = body.newObject("PartDesign::Pad", "Pad")
pad1.Profile = sketch1
pad1.Length = 10

doc.recompute()
